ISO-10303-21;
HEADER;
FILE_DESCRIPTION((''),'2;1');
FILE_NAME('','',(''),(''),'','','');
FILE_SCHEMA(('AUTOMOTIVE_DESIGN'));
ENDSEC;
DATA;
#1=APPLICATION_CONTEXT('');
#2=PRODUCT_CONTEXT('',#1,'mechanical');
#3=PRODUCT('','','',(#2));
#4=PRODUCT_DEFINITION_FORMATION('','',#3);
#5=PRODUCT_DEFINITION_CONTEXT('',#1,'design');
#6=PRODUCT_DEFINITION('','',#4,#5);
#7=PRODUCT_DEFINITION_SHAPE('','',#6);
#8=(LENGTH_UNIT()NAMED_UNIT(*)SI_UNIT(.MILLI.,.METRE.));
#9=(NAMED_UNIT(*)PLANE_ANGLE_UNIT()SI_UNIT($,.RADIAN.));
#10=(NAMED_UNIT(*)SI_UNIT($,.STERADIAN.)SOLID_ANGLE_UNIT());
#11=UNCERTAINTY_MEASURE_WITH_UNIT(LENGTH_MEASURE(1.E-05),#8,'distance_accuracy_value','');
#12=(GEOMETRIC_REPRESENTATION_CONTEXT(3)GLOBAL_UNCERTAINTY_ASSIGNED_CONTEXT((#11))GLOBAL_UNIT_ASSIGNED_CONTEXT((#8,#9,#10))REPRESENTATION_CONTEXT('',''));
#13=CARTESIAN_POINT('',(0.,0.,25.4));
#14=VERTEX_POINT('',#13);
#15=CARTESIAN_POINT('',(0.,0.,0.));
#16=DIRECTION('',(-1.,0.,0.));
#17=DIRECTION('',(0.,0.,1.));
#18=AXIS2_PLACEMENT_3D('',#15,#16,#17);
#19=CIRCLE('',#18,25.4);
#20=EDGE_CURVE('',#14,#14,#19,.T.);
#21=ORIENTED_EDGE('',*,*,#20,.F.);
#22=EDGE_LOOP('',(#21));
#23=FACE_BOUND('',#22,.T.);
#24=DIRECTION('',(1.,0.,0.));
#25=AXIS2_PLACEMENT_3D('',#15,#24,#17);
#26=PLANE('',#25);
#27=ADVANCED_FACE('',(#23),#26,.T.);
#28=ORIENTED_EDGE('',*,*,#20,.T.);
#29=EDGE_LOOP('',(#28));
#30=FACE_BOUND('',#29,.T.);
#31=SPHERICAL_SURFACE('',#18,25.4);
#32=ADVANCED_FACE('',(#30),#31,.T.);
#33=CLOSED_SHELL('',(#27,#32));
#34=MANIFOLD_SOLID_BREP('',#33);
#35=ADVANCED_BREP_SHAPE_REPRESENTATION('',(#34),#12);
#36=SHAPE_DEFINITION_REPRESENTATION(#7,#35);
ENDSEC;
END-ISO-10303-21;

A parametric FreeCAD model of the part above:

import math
import FreeCAD as App
import Part
import Sketcher
Q = App.Units.Quantity

doc = App.newDocument("Part")
body = doc.addObject("PartDesign::Body", "Body")

sketch1 = body.newObject("Sketcher::SketchObject", "Sketch")
sketch1.AttachmentSupport = (doc.getObject("YZ_Plane"), [""])
sketch1.MapMode = "FlatFace"
sketch1.addGeometry([
    Part.LineSegment(App.Vector(0, -25, 0), App.Vector(0, 25, 0)),
    Part.ArcOfCircle(Part.Circle(App.Vector(0, 0, 0), App.Vector(0, 0, 1), 25), math.radians(90), math.radians(270)),
], False)
sketch1.addConstraint([
    Sketcher.Constraint("Coincident", 0, 1, 1, 2),
    Sketcher.Constraint("Coincident", 1, 1, 0, 2),
    Sketcher.Constraint("Vertical", 0),
    Sketcher.Constraint("Coincident", 1, 3, -1, 1),
    Sketcher.Constraint("PointOnObject", 0, 1, -2),
    Sketcher.Constraint("Radius", 1, Q("1 in")),
])
revolution = body.newObject("PartDesign::Revolution", "Revolution")
revolution.Profile = sketch1
revolution.ReferenceAxis = (sketch1, ["V_Axis"])
revolution.Angle = 180
revolution.Reversed = True

doc.recompute()
